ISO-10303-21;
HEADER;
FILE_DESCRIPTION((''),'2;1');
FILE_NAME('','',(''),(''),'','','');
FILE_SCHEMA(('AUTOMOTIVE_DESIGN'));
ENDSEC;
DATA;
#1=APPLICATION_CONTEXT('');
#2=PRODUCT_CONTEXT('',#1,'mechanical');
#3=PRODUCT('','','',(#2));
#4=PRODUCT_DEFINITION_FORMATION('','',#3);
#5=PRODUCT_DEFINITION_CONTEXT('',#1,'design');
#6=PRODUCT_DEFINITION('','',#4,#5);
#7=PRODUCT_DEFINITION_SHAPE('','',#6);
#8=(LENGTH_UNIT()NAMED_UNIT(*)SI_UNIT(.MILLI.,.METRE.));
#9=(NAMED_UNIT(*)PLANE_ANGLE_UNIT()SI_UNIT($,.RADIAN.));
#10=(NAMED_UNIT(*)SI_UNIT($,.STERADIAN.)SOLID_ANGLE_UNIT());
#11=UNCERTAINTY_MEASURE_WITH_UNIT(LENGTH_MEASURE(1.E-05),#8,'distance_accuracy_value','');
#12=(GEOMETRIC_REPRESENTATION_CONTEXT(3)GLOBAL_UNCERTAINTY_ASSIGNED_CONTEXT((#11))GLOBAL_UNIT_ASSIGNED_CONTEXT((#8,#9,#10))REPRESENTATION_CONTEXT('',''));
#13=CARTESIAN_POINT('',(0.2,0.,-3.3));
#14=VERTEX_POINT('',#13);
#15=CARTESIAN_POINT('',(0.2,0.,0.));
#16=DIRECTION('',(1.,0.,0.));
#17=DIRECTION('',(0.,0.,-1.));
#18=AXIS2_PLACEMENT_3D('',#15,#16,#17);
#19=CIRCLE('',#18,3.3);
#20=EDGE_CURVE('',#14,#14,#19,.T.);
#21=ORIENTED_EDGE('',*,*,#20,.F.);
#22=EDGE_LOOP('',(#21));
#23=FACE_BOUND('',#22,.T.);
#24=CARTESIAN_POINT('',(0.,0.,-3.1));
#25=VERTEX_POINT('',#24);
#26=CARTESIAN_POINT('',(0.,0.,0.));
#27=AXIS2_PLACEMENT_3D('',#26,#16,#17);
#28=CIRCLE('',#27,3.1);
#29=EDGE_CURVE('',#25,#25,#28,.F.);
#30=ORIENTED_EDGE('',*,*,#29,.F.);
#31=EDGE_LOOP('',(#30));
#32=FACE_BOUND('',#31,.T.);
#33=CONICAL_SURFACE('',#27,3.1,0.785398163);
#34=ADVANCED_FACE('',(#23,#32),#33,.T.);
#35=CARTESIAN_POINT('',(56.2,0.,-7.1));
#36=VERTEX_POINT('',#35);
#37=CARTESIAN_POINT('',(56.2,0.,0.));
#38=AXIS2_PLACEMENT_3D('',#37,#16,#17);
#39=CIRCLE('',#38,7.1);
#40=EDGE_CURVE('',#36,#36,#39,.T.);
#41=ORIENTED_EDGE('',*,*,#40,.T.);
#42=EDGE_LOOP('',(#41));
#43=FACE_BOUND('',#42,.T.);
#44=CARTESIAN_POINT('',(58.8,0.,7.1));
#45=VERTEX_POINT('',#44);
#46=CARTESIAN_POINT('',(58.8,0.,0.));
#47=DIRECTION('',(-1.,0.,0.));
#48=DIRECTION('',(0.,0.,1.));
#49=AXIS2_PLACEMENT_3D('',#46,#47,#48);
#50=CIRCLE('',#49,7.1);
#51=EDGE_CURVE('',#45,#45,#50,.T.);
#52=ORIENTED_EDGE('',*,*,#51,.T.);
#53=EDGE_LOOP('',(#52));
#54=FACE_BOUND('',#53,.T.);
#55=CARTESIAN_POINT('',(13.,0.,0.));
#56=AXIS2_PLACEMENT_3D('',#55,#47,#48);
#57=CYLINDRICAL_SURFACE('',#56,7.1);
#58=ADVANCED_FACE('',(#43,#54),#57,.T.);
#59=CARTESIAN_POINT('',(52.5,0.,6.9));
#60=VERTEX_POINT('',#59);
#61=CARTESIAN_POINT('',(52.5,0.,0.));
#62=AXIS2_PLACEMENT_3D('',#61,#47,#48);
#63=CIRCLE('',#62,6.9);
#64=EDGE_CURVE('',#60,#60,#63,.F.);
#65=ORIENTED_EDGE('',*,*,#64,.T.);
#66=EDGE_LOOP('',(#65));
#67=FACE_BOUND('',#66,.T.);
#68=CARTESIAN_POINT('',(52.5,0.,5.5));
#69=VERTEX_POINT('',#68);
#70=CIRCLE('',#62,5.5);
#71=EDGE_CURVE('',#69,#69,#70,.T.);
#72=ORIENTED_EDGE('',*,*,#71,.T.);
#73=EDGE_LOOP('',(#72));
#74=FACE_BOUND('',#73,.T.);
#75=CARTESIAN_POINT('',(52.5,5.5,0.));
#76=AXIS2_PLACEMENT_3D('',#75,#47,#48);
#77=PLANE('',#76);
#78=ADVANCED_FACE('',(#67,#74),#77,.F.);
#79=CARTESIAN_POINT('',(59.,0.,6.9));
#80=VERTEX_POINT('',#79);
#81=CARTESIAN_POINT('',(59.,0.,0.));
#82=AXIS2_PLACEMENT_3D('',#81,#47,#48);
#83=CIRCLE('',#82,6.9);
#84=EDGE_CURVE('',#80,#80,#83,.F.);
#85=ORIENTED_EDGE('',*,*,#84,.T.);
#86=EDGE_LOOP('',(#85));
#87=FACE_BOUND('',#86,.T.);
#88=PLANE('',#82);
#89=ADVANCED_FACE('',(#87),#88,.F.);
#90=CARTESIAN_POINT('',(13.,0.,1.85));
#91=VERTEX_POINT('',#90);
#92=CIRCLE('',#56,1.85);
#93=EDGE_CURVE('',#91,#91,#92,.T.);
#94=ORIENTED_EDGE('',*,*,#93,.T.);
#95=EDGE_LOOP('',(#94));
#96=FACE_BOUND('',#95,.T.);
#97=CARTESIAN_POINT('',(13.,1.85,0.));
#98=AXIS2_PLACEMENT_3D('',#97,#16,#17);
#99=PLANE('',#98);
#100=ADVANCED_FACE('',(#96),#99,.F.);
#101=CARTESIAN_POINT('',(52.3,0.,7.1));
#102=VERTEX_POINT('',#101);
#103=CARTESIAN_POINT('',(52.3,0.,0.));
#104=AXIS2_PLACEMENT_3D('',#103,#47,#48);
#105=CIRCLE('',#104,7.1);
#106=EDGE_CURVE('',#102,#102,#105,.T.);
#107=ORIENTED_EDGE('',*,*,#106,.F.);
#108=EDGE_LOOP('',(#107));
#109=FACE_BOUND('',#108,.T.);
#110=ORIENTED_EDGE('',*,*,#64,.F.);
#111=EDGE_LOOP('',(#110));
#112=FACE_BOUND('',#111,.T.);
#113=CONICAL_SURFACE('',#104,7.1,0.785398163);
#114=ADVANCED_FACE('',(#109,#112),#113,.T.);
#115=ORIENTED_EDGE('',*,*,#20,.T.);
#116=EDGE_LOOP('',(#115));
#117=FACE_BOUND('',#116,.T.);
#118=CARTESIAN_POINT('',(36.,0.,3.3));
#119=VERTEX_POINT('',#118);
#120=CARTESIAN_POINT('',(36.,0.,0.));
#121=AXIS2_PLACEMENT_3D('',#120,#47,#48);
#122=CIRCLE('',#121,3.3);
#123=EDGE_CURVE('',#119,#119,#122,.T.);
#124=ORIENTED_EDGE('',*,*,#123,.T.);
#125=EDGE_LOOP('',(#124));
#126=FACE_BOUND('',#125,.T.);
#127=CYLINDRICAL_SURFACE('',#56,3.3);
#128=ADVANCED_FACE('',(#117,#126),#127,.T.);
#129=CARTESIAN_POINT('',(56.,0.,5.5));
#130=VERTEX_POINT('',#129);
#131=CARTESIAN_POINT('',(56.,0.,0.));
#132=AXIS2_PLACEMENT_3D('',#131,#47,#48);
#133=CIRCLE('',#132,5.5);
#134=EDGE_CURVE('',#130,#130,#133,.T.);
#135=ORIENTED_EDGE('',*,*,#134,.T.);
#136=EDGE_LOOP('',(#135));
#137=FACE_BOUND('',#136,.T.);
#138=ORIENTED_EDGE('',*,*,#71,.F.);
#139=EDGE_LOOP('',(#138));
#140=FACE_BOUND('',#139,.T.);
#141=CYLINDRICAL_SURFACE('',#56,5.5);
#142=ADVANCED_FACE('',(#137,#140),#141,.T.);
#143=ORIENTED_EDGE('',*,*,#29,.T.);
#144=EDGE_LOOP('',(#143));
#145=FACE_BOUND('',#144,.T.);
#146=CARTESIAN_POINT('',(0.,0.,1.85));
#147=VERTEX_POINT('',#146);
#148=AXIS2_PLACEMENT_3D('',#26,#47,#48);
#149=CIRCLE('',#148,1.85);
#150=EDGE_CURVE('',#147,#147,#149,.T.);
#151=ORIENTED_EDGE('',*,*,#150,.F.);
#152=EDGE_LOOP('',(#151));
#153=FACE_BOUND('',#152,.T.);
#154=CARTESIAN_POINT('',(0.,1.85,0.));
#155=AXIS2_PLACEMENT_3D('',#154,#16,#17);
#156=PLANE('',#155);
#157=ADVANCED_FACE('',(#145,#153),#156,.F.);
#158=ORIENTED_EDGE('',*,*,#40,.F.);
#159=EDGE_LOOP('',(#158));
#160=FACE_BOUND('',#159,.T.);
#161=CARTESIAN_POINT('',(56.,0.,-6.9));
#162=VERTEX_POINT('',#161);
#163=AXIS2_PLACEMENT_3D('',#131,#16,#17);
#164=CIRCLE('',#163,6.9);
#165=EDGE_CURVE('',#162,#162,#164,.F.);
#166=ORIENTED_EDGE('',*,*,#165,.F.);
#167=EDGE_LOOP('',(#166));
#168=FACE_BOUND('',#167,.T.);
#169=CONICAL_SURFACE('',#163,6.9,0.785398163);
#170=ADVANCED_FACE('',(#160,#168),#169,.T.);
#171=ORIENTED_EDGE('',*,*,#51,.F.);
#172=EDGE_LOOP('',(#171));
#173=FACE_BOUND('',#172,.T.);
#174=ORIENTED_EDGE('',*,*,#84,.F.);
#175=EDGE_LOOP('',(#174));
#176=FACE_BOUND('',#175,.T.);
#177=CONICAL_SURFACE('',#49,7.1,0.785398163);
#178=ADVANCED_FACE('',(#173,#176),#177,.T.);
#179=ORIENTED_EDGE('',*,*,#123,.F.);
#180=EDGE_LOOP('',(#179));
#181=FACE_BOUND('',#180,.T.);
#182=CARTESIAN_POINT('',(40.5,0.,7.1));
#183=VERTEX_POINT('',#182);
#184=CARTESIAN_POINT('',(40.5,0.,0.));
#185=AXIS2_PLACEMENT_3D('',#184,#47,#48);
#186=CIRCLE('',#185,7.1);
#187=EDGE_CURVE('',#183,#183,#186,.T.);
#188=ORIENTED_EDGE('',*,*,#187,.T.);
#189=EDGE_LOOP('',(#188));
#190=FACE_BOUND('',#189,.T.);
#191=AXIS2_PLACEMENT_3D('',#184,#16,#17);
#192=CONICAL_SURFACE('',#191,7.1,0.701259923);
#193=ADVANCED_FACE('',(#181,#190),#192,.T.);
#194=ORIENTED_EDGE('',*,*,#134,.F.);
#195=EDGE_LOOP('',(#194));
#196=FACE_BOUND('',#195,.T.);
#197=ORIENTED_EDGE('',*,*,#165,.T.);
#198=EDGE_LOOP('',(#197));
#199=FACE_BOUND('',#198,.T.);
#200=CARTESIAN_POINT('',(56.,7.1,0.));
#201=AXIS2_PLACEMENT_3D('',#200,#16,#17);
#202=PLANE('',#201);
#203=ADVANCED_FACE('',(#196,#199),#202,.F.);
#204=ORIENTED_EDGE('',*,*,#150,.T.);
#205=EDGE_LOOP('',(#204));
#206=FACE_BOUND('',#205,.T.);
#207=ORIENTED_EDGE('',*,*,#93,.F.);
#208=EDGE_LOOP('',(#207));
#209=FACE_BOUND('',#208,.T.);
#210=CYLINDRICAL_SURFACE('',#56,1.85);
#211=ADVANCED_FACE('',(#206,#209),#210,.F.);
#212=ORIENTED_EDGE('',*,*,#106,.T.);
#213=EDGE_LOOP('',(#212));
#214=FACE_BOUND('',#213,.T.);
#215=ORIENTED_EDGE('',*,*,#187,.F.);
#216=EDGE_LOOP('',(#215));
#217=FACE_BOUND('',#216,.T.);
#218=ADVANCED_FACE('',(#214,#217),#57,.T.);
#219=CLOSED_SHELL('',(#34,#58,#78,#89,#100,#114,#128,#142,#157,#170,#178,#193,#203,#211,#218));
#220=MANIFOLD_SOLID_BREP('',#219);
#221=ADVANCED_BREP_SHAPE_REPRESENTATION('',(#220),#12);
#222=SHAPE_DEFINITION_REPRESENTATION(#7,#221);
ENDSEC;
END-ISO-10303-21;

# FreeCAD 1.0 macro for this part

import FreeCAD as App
import Part
import Sketcher


def edges_at(feature, points):
    """Names of the edges that pass closest to the given points."""
    edges = feature.Shape.Edges
    near = lambda p: min(range(len(edges)), key=lambda i: edges[i].distToShape(Part.Vertex(*p))[0])
    return sorted({f"Edge{near(p) + 1}" for p in points})

doc = App.newDocument("Part")
body = doc.addObject("PartDesign::Body", "Body")

# Sketch on XY plane
sketch1 = body.newObject("Sketcher::SketchObject", "Sketch")
sketch1.AttachmentSupport = (doc.getObject("XY_Plane"), [""])
sketch1.MapMode = "FlatFace"
sketch1.addGeometry(Part.LineSegment(App.Vector(13, 0, 0), App.Vector(59, 0, 0)), False)
sketch1.addGeometry(Part.LineSegment(App.Vector(59, 0, 0), App.Vector(59, 7.1, 0)), False)
sketch1.addGeometry(Part.LineSegment(App.Vector(59, 7.1, 0), App.Vector(56, 7.1, 0)), False)
sketch1.addGeometry(Part.LineSegment(App.Vector(56, 7.1, 0), App.Vector(56, 5.5, 0)), False)
sketch1.addGeometry(Part.LineSegment(App.Vector(56, 5.5, 0), App.Vector(52.5, 5.5, 0)), False)
sketch1.addGeometry(Part.LineSegment(App.Vector(52.5, 5.5, 0), App.Vector(52.5, 7.1, 0)), False)
sketch1.addGeometry(Part.LineSegment(App.Vector(52.5, 7.1, 0), App.Vector(40.5, 7.1, 0)), False)
sketch1.addGeometry(Part.LineSegment(App.Vector(40.5, 7.1, 0), App.Vector(36, 3.3, 0)), False)
sketch1.addGeometry(Part.LineSegment(App.Vector(36, 3.3, 0), App.Vector(0, 3.3, 0)), False)
sketch1.addGeometry(Part.LineSegment(App.Vector(0, 3.3, 0), App.Vector(0, 1.9, 0)), False)
sketch1.addGeometry(Part.LineSegment(App.Vector(0, 1.9, 0), App.Vector(13, 1.9, 0)), False)
sketch1.addGeometry(Part.LineSegment(App.Vector(13, 1.9, 0), App.Vector(13, 0, 0)), False)
sketch1.addConstraint(Sketcher.Constraint("Coincident", 0, 2, 1, 1))
sketch1.addConstraint(Sketcher.Constraint("Coincident", 1, 2, 2, 1))
sketch1.addConstraint(Sketcher.Constraint("Coincident", 2, 2, 3, 1))
sketch1.addConstraint(Sketcher.Constraint("Coincident", 3, 2, 4, 1))
sketch1.addConstraint(Sketcher.Constraint("Coincident", 4, 2, 5, 1))
sketch1.addConstraint(Sketcher.Constraint("Coincident", 5, 2, 6, 1))
sketch1.addConstraint(Sketcher.Constraint("Coincident", 6, 2, 7, 1))
sketch1.addConstraint(Sketcher.Constraint("Coincident", 7, 2, 8, 1))
sketch1.addConstraint(Sketcher.Constraint("Coincident", 8, 2, 9, 1))
sketch1.addConstraint(Sketcher.Constraint("Coincident", 9, 2, 10, 1))
sketch1.addConstraint(Sketcher.Constraint("Coincident", 10, 2, 11, 1))
sketch1.addConstraint(Sketcher.Constraint("Coincident", 11, 2, 0, 1))
sketch1.addConstraint(Sketcher.Constraint("Horizontal", 0))
sketch1.addConstraint(Sketcher.Constraint("Vertical", 1))
sketch1.addConstraint(Sketcher.Constraint("Horizontal", 2))
sketch1.addConstraint(Sketcher.Constraint("Vertical", 3))
sketch1.addConstraint(Sketcher.Constraint("Horizontal", 4))
sketch1.addConstraint(Sketcher.Constraint("Vertical", 5))
sketch1.addConstraint(Sketcher.Constraint("Horizontal", 6))
sketch1.addConstraint(Sketcher.Constraint("Horizontal", 8))
sketch1.addConstraint(Sketcher.Constraint("Vertical", 9))
sketch1.addConstraint(Sketcher.Constraint("Horizontal", 10))
sketch1.addConstraint(Sketcher.Constraint("Vertical", 11))
sketch1.addConstraint(Sketcher.Constraint("PointOnObject", 0, 2, -1))
sketch1.addConstraint(Sketcher.Constraint("PointOnObject", 8, 2, -2))
sketch1.addConstraint(Sketcher.Constraint("Horizontal", 2, 2, 5, 2))
sketch1.addConstraint(Sketcher.Constraint("DistanceX", 0, 1, 0, 2, 46.0))
sketch1.addConstraint(Sketcher.Constraint("DistanceX", 2, 2, 2, 1, 3.0))
sketch1.addConstraint(Sketcher.Constraint("DistanceX", 6, 2, 6, 1, 12.0))
sketch1.addConstraint(Sketcher.Constraint("DistanceX", 8, 2, 8, 1, 36.0))
sketch1.addConstraint(Sketcher.Constraint("DistanceX", 10, 1, 10, 2, 13.0))
sketch1.addConstraint(Sketcher.Constraint("DistanceX", 4, 2, 4, 1, 3.5))
sketch1.addConstraint(Sketcher.Constraint("DistanceY", 1, 1, 1, 2, 7.1))
sketch1.addConstraint(Sketcher.Constraint("DistanceY", 3, 2, 3, 1, 1.6))
sketch1.addConstraint(Sketcher.Constraint("DistanceY", 9, 2, 9, 1, 1.45))
sketch1.addConstraint(Sketcher.Constraint("DistanceY", 11, 2, 11, 1, 1.85))
revolution = body.newObject("PartDesign::Revolution", "Revolution")
revolution.Profile = sketch1
revolution.ReferenceAxis = (sketch1, ["H_Axis"])
revolution.Angle = 360
doc.recompute()

chamfer = body.newObject("PartDesign::Chamfer", "Chamfer")
chamfer.Base = (revolution, edges_at(revolution, [
    (0, 0, -3.3),
    (52.5, 0, -7.1),
    (56, 0, -7.1),
    (59, 0, -7.1),
]))
chamfer.Size = 0.2

doc.recompute()
